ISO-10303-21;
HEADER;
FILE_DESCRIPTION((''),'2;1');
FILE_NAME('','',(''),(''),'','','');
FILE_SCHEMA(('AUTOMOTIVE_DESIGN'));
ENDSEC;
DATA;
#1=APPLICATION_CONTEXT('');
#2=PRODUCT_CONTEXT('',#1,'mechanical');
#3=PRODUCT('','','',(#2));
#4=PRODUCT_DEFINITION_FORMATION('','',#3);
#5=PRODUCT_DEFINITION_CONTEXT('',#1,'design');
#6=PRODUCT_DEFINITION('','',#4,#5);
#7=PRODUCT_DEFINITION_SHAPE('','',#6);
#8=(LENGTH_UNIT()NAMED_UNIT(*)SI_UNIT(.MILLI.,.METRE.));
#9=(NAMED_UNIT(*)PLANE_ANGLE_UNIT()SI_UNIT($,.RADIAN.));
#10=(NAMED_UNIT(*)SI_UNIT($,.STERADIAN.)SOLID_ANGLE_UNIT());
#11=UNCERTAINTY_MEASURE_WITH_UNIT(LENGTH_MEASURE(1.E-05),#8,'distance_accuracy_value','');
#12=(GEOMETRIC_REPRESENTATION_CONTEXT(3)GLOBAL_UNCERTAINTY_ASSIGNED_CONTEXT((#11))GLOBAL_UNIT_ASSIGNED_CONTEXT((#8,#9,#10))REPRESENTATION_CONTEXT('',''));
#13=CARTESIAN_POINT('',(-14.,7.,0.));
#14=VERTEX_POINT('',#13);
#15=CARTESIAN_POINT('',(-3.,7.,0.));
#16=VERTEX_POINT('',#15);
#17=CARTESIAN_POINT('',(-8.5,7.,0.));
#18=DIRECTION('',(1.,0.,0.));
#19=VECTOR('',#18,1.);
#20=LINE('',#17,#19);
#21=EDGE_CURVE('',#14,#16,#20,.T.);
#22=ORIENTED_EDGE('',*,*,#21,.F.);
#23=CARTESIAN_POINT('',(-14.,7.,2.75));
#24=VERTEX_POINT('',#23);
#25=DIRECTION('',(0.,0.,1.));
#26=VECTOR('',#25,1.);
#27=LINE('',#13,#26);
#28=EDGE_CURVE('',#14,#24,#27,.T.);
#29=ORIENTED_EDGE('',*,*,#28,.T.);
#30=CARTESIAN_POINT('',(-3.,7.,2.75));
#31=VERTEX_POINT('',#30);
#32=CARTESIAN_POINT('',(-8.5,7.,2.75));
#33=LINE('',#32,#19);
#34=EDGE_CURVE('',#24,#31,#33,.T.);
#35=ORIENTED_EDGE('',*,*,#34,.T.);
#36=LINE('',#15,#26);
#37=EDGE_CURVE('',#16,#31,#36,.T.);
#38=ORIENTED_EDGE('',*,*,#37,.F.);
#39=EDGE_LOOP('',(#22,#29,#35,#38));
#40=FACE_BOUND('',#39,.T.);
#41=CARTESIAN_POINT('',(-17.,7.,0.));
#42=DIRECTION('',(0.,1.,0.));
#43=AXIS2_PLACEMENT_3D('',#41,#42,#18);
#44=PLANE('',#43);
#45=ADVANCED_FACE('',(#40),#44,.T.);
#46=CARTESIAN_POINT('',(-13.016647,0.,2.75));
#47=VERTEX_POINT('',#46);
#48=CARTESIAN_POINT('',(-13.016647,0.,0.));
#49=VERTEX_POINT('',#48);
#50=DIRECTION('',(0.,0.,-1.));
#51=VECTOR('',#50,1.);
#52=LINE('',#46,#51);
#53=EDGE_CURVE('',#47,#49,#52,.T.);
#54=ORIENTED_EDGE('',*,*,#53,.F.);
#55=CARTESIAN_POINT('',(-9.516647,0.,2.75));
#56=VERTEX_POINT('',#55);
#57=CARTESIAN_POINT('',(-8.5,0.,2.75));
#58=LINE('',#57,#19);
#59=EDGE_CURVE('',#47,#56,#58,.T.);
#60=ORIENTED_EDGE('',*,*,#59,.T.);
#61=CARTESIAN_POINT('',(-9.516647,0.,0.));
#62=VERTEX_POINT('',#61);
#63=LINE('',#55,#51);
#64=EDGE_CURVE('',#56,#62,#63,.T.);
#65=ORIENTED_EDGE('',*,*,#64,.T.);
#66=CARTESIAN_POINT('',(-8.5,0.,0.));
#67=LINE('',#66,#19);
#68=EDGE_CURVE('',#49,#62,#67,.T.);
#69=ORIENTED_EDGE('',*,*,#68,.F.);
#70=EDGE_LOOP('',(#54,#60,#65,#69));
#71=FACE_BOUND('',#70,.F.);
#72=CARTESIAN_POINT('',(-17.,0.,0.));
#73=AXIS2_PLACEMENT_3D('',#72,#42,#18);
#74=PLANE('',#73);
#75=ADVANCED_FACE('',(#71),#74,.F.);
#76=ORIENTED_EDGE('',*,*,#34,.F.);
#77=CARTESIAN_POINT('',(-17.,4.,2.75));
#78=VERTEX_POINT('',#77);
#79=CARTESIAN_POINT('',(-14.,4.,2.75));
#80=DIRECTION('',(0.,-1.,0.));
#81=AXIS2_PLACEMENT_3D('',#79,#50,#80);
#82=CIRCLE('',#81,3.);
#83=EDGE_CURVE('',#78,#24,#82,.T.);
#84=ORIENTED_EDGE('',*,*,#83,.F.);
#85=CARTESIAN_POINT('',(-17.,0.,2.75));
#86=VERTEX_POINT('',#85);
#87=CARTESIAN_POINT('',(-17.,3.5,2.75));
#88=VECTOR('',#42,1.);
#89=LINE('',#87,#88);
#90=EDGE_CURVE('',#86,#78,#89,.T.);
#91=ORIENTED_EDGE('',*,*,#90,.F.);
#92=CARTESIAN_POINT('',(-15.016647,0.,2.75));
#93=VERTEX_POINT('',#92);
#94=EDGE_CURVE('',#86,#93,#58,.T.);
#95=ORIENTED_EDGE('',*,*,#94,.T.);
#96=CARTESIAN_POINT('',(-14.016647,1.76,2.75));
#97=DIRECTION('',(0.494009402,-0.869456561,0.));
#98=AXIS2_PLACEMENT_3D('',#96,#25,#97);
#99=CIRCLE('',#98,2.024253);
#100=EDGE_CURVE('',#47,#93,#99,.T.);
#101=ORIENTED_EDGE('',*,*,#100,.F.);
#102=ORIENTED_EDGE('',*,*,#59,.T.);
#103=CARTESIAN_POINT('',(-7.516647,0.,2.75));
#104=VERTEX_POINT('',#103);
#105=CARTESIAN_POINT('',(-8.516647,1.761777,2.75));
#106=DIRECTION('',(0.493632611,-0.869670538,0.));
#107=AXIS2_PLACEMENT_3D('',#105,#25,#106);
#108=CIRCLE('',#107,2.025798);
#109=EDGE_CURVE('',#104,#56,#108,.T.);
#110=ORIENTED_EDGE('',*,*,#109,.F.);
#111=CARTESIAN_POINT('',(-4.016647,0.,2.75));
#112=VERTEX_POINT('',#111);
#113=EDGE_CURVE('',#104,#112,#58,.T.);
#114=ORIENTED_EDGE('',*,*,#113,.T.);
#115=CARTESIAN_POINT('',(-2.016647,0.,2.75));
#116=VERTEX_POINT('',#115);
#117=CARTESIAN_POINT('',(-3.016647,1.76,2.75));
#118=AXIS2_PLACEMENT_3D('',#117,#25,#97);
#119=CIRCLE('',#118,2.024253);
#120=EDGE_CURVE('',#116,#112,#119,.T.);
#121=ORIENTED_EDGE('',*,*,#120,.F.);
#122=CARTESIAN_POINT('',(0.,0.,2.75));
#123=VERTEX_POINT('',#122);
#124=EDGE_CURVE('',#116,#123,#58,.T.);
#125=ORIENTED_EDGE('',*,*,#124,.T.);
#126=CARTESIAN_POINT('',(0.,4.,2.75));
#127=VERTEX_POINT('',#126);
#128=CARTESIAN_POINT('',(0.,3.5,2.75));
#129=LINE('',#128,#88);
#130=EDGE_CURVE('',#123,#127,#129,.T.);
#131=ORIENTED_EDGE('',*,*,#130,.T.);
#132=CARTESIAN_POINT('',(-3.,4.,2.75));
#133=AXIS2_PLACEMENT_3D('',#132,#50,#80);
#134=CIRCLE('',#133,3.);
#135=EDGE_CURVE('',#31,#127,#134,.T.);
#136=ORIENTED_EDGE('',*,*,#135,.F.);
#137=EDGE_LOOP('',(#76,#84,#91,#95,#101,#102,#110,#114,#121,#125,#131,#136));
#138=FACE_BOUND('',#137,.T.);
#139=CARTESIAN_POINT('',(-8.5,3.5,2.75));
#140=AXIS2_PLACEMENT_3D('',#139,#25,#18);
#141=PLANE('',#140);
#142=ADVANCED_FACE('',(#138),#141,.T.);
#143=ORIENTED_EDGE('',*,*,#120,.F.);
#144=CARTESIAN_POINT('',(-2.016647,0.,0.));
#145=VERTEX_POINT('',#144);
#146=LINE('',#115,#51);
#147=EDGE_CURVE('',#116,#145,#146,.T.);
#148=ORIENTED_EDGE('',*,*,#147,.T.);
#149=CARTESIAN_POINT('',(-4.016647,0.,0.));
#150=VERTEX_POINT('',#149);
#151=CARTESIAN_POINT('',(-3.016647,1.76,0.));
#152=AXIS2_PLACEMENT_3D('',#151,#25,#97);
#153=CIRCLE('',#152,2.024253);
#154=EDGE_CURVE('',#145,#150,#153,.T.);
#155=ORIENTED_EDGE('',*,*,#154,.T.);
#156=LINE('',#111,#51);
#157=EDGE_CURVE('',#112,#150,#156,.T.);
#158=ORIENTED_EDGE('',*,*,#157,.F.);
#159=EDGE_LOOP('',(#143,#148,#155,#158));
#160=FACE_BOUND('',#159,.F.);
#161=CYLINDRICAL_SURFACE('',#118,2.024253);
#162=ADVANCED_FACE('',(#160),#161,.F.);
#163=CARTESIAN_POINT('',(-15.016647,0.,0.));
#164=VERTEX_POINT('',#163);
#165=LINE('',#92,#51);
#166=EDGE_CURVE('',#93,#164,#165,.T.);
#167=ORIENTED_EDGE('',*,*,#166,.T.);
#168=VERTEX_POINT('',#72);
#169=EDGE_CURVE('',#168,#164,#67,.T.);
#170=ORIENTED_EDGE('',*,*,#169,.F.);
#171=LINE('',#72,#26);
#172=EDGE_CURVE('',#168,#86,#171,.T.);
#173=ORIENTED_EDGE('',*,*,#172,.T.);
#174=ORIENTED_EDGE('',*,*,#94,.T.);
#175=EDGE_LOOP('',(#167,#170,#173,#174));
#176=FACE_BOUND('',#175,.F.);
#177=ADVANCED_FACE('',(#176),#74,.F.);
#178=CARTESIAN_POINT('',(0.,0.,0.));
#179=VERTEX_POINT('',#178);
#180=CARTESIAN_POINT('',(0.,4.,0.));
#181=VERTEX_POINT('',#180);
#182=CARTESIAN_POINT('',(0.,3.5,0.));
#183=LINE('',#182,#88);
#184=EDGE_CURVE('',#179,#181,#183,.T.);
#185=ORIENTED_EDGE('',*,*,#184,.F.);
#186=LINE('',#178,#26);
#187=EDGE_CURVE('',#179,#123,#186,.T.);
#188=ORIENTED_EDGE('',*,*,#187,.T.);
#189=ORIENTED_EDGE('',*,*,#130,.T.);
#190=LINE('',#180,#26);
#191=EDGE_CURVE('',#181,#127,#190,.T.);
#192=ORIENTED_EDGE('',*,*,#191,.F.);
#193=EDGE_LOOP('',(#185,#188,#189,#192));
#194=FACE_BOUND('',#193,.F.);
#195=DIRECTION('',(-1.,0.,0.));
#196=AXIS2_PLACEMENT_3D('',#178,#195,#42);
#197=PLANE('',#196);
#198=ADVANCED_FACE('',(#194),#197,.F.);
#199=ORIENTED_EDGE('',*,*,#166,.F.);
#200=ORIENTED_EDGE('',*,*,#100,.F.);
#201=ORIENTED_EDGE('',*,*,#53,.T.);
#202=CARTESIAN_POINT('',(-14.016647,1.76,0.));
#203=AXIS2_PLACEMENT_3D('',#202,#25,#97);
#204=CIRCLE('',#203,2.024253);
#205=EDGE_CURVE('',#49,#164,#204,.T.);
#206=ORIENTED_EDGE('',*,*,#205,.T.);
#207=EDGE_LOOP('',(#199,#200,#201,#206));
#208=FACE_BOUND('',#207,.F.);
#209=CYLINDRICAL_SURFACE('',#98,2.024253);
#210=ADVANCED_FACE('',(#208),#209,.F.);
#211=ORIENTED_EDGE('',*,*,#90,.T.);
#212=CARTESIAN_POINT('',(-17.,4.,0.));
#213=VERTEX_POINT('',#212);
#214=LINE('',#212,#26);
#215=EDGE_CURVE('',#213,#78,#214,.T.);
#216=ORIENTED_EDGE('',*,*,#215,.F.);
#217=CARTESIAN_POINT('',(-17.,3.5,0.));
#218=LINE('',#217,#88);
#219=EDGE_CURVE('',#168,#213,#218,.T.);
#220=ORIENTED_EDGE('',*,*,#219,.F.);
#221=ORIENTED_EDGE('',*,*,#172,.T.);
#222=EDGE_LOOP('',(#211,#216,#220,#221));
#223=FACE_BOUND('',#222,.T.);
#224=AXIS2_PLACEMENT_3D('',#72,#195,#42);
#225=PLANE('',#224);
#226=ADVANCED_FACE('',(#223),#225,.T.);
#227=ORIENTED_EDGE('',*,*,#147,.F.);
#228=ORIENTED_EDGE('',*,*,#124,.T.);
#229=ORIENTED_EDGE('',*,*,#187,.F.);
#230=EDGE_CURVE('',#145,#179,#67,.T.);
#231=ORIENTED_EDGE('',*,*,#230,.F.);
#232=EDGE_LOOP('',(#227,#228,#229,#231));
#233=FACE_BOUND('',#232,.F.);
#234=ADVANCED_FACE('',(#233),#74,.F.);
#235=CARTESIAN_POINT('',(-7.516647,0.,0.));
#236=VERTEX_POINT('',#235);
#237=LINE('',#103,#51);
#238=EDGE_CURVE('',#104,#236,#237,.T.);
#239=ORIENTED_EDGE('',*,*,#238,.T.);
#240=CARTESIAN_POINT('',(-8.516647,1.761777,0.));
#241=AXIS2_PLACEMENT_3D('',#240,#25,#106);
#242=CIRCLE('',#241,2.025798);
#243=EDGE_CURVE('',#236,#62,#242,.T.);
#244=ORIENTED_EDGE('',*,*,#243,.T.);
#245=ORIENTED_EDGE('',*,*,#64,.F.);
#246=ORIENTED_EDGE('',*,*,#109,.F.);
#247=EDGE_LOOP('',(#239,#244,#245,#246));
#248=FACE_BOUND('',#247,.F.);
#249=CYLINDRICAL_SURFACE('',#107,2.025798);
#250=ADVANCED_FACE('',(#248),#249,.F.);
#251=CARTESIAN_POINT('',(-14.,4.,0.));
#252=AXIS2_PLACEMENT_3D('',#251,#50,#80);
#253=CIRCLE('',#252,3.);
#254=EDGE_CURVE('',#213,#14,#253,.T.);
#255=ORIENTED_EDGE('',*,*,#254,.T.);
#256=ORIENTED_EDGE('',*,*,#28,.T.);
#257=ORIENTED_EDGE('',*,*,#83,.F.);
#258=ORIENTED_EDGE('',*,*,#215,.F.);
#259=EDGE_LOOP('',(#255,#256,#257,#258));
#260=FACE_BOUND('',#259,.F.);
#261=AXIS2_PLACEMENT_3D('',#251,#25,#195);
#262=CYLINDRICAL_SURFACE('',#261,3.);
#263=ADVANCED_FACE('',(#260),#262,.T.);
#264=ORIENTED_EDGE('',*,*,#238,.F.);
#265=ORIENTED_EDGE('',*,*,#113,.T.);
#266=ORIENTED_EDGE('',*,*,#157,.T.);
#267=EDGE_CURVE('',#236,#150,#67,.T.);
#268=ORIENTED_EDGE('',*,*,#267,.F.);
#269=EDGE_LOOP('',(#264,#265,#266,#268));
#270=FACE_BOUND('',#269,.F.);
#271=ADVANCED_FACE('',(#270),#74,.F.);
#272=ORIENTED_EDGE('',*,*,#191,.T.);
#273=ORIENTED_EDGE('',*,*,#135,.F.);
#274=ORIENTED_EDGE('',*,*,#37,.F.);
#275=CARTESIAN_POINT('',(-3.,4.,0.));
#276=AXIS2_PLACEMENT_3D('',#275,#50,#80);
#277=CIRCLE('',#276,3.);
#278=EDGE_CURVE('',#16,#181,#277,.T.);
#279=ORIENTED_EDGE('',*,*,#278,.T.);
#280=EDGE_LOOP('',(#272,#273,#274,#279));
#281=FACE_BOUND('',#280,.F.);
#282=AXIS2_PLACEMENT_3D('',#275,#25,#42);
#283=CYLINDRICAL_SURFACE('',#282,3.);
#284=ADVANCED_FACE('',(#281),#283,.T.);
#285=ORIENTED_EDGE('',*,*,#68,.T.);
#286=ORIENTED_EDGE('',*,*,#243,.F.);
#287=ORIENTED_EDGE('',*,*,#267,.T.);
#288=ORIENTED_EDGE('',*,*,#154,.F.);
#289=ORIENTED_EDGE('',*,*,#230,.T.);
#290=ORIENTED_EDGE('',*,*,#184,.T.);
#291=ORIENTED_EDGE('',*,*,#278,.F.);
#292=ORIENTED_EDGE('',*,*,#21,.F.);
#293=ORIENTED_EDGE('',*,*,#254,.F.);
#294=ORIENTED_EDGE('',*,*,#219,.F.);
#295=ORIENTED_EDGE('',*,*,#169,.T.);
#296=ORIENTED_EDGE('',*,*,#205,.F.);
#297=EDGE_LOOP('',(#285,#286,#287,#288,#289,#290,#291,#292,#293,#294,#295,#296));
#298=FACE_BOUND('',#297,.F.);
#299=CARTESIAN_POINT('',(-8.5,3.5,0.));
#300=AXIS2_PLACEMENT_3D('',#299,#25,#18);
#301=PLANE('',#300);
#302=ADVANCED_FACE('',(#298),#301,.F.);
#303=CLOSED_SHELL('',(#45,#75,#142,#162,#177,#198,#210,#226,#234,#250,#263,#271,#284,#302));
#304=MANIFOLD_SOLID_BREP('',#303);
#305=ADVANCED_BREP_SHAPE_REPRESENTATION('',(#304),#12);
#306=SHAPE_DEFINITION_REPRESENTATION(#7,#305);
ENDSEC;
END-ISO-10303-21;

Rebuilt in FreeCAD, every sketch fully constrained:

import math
import FreeCAD as App
import Part
import Sketcher
from FreeCAD import Vector


def edges_at(feature, points):
    """Names of the edges that pass closest to the given points."""
    edges = feature.Shape.Edges
    near = lambda p: min(range(len(edges)), key=lambda i: edges[i].distToShape(Part.Vertex(*p))[0])
    return sorted({f"Edge{near(p) + 1}" for p in points})


def add_polygon(sketch, points):
    """Adds a closed chain of lines whose ends are joined by coincident constraints."""
    first, n = sketch.GeometryCount, len(points)
    for a, b in zip(points, points[1:] + points[:1]):
        sketch.addGeometry(Part.LineSegment(App.Vector(*a, 0), App.Vector(*b, 0)), False)
    for i in range(n):
        sketch.addConstraint(Sketcher.Constraint("Coincident", first + i, 2, first + (i + 1) % n, 1))

doc = App.newDocument("Part")
body = doc.addObject("PartDesign::Body", "Body")

# Sketch on XY plane
sketch1 = doc.addObject("Sketcher::SketchObject", "Sketch")
body.addObject(sketch1)
sketch1.AttachmentSupport = (doc.XY_Plane, [""])
sketch1.MapMode = "FlatFace"
add_polygon(sketch1, [(-17, 7), (-17, 0), (0, 0), (0, 7)])  # lines 0-3
sketch1.addConstraint([
    Sketcher.Constraint("Vertical", 0),
    Sketcher.Constraint("Horizontal", 1),
    Sketcher.Constraint("Vertical", 2),
    Sketcher.Constraint("Horizontal", 3),
    Sketcher.Constraint("Coincident", 1, 2, -1, 1),
    Sketcher.Constraint("DistanceX", 1, 1, 1, 2, 17.0),
    Sketcher.Constraint("DistanceY", 0, 2, 0, 1, 7.0),
])
pad1 = doc.addObject("PartDesign::Pad", "Pad")
body.addObject(pad1)
pad1.Profile = sketch1
pad1.Length = 2.75

# Sketch on XY plane
sketch2 = doc.addObject("Sketcher::SketchObject", "Sketch001")
body.addObject(sketch2)
sketch2.AttachmentSupport = (doc.XY_Plane, [""])
sketch2.MapMode = "FlatFace"
sketch2.AttachmentOffset = App.Placement(Vector(0, 0, 2.75), App.Rotation())
sketch2.addGeometry([
    Part.ArcOfCircle(Part.Circle(Vector(-8.5, 1.8, 0), Vector(0, 0, 1), 2), math.radians(-60), math.radians(240)),  # 0
    Part.LineSegment(Vector(-9.5, 0, 0), Vector(-7.5, 0, 0)),  # 1
    Part.ArcOfCircle(Part.Circle(Vector(-3, 1.8, 0), Vector(0, 0, 1), 2), math.radians(-60), math.radians(240)),  # 2
    Part.LineSegment(Vector(-4, 0, 0), Vector(-2, 0, 0)),  # 3
    Part.LineSegment(Vector(-15, 0, 0), Vector(-13, 0, 0)),  # 4
    Part.ArcOfCircle(Part.Circle(Vector(-14, 1.8, 0), Vector(0, 0, 1), 2), math.radians(-60), math.radians(240)),  # 5
], False)
sketch2.addConstraint([
    Sketcher.Constraint("Coincident", 0, 1, 1, 2),
    Sketcher.Constraint("Coincident", 1, 1, 0, 2),
    Sketcher.Constraint("Coincident", 2, 1, 3, 2),
    Sketcher.Constraint("Coincident", 3, 1, 2, 2),
    Sketcher.Constraint("Coincident", 4, 1, 5, 2),
    Sketcher.Constraint("Coincident", 5, 1, 4, 2),
    Sketcher.Constraint("Horizontal", 1),
    Sketcher.Constraint("Horizontal", 3),
    Sketcher.Constraint("Horizontal", 4),
    Sketcher.Constraint("Equal", 2, 5),
    Sketcher.Constraint("PointOnObject", 0, 1, -1),
    Sketcher.Constraint("PointOnObject", 2, 1, -1),
    Sketcher.Constraint("PointOnObject", 4, 1, -1),
    Sketcher.Constraint("Horizontal", 2, 3, 5, 3),
    Sketcher.Constraint("Equal", 1, 3),
    Sketcher.Constraint("DistanceX", 1, 1, 1, 2, 2.0),
    Sketcher.Constraint("DistanceX", 5, 3, 2, 3, 11.0),
    Sketcher.Constraint("Radius", 0, 2.025798),
    Sketcher.Constraint("DistanceX", 0, 3, 2, 3, 5.5),
    Sketcher.Constraint("DistanceY", -1, 1, 2, 3, 1.76),
    Sketcher.Constraint("DistanceX", 0, 3, -1, 1, 8.516647),
])
pocket1 = doc.addObject("PartDesign::Pocket", "Pocket")
body.addObject(pocket1)
pocket1.Profile = sketch2
pocket1.Length = 25
doc.recompute()

fillet = doc.addObject("PartDesign::Fillet", "Fillet")
body.addObject(fillet)
fillet.Base = (pocket1, edges_at(pocket1, [(-17, 7, 1.375), (0, 7, 1.375)]))
fillet.Radius = 3

doc.recompute()
